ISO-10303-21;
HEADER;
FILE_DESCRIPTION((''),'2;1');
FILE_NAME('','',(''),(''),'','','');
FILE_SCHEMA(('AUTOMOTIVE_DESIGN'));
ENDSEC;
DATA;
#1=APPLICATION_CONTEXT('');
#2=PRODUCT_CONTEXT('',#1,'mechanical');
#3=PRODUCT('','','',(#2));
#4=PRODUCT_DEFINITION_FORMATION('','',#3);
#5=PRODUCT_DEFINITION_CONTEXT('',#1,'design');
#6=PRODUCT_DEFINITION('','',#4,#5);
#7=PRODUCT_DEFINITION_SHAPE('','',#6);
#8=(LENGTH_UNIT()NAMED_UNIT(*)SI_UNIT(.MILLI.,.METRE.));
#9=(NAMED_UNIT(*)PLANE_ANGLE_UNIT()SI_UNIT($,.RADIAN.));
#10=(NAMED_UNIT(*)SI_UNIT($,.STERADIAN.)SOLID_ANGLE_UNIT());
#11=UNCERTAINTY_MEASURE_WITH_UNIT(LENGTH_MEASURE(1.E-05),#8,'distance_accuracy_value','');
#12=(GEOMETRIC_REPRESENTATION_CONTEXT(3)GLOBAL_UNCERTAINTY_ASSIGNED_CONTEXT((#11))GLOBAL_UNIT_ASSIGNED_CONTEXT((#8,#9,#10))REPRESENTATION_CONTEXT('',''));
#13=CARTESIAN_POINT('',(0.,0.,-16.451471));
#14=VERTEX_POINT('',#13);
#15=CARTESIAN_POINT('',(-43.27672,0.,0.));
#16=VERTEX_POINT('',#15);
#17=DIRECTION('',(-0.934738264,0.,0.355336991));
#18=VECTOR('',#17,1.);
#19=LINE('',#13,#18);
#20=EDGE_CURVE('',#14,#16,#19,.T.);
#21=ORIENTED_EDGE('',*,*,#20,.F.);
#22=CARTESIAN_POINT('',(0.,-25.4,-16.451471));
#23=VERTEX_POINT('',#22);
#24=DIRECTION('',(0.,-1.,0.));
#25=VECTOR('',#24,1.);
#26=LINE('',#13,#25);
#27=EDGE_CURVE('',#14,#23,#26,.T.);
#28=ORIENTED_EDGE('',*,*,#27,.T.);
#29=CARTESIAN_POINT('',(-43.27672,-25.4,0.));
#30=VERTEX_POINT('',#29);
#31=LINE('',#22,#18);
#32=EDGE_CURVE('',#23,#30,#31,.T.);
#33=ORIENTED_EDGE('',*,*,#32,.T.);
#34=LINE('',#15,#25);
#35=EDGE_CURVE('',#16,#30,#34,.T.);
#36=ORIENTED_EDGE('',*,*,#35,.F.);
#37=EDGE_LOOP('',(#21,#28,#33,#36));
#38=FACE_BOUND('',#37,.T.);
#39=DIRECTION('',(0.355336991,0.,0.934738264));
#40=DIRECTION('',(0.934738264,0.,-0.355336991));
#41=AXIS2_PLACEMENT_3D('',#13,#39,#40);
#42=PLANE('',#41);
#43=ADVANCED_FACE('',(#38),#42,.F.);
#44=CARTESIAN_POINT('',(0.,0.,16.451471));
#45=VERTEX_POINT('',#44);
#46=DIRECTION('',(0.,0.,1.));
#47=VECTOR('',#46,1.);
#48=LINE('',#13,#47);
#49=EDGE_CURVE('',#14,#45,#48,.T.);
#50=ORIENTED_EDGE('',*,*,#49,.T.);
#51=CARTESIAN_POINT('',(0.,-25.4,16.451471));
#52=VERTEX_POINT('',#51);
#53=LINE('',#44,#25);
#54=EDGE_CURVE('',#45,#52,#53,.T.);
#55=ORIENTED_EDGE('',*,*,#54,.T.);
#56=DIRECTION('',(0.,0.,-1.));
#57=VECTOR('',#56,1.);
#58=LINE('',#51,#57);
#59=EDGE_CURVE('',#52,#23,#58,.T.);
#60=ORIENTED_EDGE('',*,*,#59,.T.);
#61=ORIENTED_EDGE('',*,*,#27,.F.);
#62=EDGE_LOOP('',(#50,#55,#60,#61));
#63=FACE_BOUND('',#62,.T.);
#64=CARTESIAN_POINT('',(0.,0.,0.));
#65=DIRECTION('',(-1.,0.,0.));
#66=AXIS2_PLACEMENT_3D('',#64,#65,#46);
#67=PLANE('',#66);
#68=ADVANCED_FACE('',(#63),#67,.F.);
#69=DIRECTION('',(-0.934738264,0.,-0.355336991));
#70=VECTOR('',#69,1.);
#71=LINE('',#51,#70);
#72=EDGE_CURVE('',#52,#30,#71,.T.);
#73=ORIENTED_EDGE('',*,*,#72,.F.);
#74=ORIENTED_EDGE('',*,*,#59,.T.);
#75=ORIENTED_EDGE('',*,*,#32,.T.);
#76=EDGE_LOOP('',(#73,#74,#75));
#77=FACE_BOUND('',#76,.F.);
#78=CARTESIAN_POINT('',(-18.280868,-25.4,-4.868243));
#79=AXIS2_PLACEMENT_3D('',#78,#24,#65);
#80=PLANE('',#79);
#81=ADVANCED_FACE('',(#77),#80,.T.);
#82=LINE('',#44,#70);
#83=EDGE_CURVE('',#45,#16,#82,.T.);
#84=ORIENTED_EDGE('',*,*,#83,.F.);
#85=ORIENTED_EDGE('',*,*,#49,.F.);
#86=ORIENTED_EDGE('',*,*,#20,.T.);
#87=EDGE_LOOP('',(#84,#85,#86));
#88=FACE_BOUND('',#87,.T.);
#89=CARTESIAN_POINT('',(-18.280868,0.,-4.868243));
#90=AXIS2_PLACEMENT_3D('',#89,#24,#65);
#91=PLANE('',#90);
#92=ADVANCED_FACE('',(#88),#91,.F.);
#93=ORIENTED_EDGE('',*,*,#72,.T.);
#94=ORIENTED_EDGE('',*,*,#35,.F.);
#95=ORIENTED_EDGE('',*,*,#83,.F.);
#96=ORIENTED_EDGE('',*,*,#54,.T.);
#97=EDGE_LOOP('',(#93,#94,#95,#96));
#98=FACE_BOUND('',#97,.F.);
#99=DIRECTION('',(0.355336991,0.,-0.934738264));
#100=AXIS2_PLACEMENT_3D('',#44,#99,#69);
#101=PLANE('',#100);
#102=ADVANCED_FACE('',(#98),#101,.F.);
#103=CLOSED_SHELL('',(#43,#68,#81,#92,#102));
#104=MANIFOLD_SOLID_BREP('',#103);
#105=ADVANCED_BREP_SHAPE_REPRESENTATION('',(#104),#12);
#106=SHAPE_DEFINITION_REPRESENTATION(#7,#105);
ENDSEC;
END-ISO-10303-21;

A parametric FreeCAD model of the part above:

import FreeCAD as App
import Part
import Sketcher
Q = App.Units.Quantity


def add_polygon(sketch, points):
    """Adds a closed chain of lines whose ends are joined by coincident constraints."""
    first, n = sketch.GeometryCount, len(points)
    for a, b in zip(points, points[1:] + points[:1]):
        sketch.addGeometry(Part.LineSegment(App.Vector(*a, 0), App.Vector(*b, 0)), False)
    for i in range(n):
        sketch.addConstraint(Sketcher.Constraint("Coincident", first + i, 2, first + (i + 1) % n, 1))

doc = App.newDocument("Part")
body = doc.addObject("PartDesign::Body", "Body")

# Sketch on XZ plane
sketch1 = body.newObject("Sketcher::SketchObject", "Sketch")
sketch1.AttachmentSupport = (doc.getObject("XZ_Plane"), [""])
sketch1.MapMode = "FlatFace"
add_polygon(sketch1, [(-43.27672, 0), (0, 0), (0, 16.451471)])  # lines 0-2
sketch1.addConstraint(Sketcher.Constraint("Horizontal", 0))
sketch1.addConstraint(Sketcher.Constraint("Vertical", 1))
sketch1.addConstraint(Sketcher.Constraint("Coincident", 0, 2, -1, 1))
sketch1.addConstraint(Sketcher.Constraint("DistanceX", 0, 1, 0, 2, Q("43.27672 mm")))
sketch1.addConstraint(Sketcher.Constraint("DistanceY", 1, 1, 1, 2, Q("16.451471 mm")))
pad1 = body.newObject("PartDesign::Pad", "Pad")
pad1.Profile = sketch1
pad1.Length = Q("1 in")
body2 = doc.addObject("PartDesign::Body", "Body001")
doc.recompute()

body2.BaseFeature = body
doc.recompute()

mirroring = doc.addObject("Part::Mirroring", "Mirroring")
mirroring.Source = body
mirroring.Base = App.Vector(0, 0, 0)
mirroring.Normal = App.Vector(0, 0, 1)
body3 = doc.addObject("PartDesign::Body", "Body002")
body3.BaseFeature = mirroring
boolean = body2.newObject("PartDesign::Boolean", "Boolean")
boolean.Type = "Fuse"
boolean.addObjects([body3])
doc.recompute()
mirroring.Visibility = False

doc.recompute()
